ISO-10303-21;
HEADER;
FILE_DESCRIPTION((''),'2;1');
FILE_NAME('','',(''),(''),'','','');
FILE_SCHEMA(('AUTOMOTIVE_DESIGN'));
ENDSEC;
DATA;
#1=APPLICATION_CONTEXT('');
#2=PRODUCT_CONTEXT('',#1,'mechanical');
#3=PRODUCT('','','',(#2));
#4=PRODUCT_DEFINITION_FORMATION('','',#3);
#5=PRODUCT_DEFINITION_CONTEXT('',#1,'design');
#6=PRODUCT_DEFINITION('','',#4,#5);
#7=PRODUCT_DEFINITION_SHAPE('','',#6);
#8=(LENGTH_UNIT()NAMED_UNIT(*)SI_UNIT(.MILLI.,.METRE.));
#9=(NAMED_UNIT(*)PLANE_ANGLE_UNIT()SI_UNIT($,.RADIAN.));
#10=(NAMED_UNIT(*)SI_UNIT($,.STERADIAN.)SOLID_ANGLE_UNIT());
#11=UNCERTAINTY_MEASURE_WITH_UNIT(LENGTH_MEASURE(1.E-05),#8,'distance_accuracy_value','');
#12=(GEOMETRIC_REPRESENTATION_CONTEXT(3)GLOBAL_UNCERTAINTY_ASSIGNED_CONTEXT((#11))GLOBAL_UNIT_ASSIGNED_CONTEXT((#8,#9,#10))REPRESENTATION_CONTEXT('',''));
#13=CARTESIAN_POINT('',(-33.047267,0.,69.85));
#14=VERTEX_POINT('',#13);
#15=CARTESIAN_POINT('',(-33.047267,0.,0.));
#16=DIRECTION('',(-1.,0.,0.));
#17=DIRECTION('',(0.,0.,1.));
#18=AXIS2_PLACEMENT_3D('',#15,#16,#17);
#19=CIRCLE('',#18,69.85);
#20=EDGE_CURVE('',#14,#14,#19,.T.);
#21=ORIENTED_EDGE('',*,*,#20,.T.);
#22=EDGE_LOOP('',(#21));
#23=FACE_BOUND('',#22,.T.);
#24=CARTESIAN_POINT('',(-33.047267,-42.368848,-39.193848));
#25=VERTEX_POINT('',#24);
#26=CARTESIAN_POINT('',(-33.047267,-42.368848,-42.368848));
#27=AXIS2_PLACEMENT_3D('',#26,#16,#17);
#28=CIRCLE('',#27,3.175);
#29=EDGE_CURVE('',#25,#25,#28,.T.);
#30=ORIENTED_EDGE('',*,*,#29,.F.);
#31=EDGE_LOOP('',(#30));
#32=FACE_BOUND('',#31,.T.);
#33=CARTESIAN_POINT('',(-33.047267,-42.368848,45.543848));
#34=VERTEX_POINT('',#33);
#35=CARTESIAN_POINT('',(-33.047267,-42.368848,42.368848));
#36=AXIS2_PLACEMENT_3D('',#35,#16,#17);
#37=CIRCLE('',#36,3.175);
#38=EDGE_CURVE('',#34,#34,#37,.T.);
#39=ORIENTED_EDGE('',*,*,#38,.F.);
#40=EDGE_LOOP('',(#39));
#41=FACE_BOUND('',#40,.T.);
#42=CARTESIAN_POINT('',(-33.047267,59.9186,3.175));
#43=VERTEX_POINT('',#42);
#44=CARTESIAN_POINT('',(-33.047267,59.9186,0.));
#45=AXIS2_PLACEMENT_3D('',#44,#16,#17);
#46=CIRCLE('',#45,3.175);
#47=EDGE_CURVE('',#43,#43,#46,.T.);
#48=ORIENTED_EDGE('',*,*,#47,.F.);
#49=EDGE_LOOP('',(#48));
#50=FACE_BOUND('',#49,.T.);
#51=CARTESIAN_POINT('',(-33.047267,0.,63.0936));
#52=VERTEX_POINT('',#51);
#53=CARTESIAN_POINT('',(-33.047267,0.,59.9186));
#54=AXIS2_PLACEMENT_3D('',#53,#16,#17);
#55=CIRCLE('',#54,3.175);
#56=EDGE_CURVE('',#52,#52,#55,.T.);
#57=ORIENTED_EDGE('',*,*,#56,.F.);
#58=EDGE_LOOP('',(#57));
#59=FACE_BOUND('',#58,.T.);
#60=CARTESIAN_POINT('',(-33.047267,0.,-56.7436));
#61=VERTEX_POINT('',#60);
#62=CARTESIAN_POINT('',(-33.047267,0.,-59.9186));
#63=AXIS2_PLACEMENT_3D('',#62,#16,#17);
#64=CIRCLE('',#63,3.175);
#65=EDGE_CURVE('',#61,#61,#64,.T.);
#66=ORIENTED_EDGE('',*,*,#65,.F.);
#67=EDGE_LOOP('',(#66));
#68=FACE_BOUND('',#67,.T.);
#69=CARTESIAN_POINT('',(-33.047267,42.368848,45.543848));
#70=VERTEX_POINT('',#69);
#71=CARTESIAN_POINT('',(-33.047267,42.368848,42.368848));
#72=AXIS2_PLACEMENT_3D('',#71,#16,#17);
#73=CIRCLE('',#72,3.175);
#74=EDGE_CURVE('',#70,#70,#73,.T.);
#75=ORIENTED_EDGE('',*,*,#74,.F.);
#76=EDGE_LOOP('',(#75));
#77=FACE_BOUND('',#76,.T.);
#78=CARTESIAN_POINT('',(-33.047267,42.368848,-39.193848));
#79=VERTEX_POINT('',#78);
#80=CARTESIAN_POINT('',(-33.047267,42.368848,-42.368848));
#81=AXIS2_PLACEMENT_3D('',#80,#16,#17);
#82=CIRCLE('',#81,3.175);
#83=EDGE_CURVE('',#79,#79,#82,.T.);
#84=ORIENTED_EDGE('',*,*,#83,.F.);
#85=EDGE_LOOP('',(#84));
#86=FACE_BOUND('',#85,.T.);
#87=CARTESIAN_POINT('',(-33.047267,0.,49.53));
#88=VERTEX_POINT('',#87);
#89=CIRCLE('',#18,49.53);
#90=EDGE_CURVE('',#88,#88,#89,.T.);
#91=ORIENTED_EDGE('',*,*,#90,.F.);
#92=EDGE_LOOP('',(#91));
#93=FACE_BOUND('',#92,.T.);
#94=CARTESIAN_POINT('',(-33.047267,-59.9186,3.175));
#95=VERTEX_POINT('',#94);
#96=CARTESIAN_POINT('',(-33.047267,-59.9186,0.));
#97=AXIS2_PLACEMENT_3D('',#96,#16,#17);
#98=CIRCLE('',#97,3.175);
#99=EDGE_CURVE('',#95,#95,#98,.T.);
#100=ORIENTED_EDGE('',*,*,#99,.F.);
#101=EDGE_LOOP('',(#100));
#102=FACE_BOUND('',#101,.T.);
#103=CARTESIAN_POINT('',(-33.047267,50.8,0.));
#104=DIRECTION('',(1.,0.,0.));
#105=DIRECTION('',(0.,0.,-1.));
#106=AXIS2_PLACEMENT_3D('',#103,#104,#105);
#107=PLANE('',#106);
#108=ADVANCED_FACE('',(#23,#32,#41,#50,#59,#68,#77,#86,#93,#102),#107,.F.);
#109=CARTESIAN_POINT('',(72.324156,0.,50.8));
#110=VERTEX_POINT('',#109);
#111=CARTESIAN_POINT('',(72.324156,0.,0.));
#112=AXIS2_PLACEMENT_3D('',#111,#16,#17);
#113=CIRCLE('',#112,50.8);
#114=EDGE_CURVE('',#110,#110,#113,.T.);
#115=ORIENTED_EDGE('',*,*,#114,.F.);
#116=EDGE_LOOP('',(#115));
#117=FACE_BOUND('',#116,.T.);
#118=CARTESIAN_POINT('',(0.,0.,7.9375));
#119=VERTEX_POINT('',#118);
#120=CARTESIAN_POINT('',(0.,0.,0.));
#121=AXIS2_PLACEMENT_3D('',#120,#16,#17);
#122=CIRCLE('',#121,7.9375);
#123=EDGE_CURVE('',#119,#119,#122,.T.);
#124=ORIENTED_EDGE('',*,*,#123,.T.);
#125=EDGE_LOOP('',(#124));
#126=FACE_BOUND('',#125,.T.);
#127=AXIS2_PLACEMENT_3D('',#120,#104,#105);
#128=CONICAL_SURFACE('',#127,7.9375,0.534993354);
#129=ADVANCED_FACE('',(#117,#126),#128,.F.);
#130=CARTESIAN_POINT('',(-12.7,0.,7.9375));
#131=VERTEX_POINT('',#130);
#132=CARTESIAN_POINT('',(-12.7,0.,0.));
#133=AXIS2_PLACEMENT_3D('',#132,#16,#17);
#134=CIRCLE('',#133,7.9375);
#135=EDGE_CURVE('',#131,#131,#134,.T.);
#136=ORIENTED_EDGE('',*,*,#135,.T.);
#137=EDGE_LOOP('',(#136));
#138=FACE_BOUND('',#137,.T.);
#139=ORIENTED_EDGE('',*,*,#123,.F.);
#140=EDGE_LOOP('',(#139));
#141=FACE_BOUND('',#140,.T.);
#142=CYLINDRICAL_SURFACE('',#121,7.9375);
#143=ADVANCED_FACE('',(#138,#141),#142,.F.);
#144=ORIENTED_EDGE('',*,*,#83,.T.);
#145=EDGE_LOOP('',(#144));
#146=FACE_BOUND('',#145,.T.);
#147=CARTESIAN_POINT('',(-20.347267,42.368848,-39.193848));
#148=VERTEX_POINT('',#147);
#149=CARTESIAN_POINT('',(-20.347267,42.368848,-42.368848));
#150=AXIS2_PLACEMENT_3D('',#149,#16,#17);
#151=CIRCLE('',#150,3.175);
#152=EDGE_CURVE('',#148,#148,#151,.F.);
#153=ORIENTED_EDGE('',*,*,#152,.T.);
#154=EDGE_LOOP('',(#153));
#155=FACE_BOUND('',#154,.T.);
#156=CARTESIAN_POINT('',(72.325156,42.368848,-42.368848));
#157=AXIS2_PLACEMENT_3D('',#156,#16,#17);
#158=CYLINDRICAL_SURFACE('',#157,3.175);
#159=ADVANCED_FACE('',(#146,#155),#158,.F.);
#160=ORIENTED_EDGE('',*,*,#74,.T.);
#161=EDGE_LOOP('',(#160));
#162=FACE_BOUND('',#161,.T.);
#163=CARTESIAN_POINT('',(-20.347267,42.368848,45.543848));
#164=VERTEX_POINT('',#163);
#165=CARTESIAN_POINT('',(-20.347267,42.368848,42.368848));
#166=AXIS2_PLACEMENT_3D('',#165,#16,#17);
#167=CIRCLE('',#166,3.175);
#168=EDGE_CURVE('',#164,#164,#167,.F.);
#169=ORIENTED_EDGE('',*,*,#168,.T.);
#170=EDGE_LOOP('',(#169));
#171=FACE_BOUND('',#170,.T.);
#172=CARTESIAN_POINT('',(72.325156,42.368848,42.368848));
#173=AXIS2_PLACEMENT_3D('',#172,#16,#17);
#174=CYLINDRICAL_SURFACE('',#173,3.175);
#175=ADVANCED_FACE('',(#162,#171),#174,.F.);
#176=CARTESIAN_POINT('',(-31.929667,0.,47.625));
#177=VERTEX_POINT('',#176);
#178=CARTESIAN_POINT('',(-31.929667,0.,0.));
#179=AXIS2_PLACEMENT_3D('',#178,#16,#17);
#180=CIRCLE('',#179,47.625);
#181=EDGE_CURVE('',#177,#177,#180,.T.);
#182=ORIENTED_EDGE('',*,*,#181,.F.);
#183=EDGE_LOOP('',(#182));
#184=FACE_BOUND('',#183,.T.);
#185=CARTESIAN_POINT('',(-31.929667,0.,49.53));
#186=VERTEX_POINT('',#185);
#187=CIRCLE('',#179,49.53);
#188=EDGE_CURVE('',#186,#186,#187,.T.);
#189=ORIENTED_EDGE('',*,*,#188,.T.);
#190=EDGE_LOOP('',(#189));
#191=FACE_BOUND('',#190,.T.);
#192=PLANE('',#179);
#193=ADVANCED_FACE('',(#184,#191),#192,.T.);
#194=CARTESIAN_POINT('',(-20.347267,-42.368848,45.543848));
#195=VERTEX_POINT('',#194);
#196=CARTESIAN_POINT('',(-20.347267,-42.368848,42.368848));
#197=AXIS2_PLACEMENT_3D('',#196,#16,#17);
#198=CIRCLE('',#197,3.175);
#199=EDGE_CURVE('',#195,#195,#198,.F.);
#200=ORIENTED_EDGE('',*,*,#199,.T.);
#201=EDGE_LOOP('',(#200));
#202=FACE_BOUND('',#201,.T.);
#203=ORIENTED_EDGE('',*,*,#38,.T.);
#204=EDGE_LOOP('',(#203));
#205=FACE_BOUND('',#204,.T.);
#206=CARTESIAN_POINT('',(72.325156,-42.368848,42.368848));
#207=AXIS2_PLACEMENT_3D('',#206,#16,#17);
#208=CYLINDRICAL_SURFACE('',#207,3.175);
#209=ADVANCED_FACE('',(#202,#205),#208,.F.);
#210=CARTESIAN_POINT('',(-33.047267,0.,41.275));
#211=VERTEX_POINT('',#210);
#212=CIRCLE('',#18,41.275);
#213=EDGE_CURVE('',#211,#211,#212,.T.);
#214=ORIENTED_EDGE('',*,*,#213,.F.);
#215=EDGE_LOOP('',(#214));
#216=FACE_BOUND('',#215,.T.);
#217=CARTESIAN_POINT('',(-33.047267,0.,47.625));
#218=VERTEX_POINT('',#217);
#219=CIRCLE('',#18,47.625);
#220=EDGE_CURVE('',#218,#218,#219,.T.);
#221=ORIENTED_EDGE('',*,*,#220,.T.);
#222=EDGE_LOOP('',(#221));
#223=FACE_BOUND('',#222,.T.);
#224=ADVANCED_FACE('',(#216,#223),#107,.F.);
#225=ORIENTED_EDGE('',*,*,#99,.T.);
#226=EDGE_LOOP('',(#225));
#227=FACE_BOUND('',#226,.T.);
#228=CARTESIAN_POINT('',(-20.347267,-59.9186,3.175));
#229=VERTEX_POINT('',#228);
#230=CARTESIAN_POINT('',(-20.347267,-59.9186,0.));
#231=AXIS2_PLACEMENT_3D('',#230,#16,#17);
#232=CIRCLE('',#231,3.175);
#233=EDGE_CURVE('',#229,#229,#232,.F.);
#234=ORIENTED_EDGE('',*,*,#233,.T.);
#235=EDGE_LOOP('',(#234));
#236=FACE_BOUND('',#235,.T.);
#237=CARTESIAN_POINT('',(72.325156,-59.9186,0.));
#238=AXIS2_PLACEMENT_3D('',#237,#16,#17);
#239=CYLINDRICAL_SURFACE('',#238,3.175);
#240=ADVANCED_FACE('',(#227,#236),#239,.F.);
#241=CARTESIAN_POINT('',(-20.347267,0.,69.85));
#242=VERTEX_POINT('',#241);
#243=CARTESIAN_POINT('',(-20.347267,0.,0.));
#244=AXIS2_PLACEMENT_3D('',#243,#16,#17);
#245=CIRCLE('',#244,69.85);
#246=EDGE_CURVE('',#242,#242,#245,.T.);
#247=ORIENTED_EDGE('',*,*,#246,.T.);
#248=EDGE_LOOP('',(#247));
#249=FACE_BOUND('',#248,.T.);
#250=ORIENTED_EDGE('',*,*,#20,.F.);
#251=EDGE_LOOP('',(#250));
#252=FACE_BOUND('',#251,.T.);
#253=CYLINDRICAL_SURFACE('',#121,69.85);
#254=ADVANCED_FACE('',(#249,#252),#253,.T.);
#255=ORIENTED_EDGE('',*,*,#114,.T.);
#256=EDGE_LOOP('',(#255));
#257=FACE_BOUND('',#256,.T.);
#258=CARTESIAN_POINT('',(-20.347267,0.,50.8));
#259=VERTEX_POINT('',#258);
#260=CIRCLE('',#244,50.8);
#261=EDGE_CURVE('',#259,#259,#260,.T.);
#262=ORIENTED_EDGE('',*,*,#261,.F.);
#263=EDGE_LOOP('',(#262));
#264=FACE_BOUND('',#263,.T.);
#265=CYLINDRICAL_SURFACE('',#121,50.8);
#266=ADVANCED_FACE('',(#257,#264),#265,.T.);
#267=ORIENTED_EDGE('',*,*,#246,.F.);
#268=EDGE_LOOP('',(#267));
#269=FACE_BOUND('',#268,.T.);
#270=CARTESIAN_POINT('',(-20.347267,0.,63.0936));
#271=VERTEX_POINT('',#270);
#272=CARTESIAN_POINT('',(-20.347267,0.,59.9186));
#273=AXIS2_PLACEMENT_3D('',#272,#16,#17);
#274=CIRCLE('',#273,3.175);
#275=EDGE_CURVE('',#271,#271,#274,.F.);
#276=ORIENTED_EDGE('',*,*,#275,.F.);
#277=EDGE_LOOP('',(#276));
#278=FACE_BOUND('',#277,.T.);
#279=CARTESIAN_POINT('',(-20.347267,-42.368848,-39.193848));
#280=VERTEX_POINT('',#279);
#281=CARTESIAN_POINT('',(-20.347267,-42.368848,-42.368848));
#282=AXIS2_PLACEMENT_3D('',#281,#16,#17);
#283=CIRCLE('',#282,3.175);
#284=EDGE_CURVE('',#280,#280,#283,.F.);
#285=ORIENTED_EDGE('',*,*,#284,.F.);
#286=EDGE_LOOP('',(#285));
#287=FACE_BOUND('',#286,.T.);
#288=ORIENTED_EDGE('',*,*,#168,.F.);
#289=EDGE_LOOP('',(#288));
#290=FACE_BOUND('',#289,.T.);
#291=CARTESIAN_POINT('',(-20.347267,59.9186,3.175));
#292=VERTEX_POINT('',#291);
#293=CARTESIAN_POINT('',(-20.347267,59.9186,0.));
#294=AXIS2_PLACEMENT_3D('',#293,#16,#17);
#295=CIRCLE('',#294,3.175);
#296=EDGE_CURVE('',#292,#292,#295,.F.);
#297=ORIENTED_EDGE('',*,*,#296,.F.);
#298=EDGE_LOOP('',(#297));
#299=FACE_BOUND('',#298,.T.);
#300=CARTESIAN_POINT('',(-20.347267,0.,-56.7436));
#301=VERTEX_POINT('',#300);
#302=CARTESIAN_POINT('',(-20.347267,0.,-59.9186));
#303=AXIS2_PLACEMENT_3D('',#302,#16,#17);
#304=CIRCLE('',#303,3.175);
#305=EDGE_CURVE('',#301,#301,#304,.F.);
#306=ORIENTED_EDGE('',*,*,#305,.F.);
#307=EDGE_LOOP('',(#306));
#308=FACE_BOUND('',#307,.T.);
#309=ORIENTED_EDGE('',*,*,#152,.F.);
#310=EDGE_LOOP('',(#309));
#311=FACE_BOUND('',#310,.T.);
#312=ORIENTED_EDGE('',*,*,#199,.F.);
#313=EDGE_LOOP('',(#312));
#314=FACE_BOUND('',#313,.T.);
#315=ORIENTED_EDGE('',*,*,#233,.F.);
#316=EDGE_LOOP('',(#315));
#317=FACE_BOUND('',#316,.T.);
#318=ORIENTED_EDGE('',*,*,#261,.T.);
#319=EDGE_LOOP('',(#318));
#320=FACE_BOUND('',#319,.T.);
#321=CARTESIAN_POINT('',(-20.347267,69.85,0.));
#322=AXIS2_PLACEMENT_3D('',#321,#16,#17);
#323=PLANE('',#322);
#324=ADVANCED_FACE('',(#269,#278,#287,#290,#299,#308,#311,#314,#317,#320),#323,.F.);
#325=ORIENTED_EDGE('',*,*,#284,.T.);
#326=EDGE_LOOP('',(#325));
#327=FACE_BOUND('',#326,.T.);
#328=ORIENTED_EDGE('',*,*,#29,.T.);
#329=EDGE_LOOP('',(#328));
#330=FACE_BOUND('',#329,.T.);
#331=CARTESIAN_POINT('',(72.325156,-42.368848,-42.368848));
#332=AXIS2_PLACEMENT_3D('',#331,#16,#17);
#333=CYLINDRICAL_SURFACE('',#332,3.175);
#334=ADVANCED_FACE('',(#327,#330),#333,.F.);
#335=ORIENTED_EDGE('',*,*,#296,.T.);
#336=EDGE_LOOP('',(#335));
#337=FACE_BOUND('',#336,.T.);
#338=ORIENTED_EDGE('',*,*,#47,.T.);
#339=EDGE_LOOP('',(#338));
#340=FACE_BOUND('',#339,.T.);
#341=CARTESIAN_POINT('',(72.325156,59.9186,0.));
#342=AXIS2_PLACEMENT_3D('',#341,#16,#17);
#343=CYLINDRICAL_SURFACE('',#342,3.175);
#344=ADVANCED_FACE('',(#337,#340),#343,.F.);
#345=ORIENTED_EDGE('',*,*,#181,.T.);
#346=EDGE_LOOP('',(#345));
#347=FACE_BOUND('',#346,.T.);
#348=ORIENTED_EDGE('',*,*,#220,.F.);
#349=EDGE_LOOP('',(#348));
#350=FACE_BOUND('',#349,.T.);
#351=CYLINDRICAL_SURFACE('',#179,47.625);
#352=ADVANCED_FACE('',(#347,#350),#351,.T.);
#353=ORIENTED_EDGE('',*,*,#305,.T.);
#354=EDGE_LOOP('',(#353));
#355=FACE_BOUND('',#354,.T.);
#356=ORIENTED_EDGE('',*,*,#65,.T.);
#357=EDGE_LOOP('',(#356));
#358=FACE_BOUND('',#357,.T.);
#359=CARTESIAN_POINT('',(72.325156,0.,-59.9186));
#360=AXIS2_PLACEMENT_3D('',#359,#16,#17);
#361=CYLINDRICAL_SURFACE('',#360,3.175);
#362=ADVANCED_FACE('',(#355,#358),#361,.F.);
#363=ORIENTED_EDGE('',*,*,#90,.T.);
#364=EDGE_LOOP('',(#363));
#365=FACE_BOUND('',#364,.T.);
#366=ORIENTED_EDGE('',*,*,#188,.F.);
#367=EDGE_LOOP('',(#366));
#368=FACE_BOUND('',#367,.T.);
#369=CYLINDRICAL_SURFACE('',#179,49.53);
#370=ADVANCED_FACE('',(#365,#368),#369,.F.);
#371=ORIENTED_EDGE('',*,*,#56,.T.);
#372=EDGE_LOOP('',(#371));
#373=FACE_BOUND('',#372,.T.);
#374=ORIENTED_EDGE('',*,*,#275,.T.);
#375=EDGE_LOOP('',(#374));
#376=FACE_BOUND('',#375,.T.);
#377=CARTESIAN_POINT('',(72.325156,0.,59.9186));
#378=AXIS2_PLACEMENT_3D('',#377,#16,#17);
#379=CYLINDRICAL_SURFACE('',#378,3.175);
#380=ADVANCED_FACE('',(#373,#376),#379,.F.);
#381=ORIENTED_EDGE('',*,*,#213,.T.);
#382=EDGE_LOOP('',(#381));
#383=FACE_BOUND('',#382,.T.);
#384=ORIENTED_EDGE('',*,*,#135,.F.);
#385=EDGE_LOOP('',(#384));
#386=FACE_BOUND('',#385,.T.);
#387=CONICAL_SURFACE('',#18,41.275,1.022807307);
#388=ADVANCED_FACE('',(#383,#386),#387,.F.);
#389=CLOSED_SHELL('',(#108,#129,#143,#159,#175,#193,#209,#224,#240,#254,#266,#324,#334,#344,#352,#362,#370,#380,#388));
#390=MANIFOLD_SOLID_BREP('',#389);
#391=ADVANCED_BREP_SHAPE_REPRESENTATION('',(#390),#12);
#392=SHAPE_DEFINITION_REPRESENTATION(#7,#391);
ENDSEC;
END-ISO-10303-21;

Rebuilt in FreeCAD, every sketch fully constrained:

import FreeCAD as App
import Part
import Sketcher
Q = App.Units.Quantity


def add_polygon(sketch, points):
    """Adds a closed chain of lines whose ends are joined by coincident constraints."""
    first, n = sketch.GeometryCount, len(points)
    for a, b in zip(points, points[1:] + points[:1]):
        sketch.addGeometry(Part.LineSegment(App.Vector(*a, 0), App.Vector(*b, 0)), False)
    for i in range(n):
        sketch.addConstraint(Sketcher.Constraint("Coincident", first + i, 2, first + (i + 1) % n, 1))

doc = App.newDocument("Part")
body = doc.addObject("PartDesign::Body", "Body")

# Sketch on XY plane
sketch1 = body.newObject("Sketcher::SketchObject", "Sketch")
sketch1.AttachmentSupport = (doc.getObject("XY_Plane"), [""])
sketch1.MapMode = "FlatFace"
add_polygon(sketch1, [(0, 8), (72, 51), (-20, 51), (-20, 70), (-33, 70), (-33, 41), (-13, 8)])  # lines 0-6
sketch1.addConstraint([
    Sketcher.Constraint("Horizontal", 1),
    Sketcher.Constraint("Vertical", 2),
    Sketcher.Constraint("Horizontal", 3),
    Sketcher.Constraint("Vertical", 4),
    Sketcher.Constraint("Horizontal", 6),
    Sketcher.Constraint("PointOnObject", 6, 2, -2),
    Sketcher.Constraint("Equal", 3, 6),
    Sketcher.Constraint("DistanceX", 3, 2, 3, 1, Q("0.5 in")),
    Sketcher.Constraint("DistanceY", -1, 1, 0, 2, Q("2 in")),
    Sketcher.Constraint("DistanceY", 2, 1, 2, 2, Q("0.75 in")),
    Sketcher.Constraint("DistanceY", 4, 2, 4, 1, Q("1.125 in")),
    Sketcher.Constraint("DistanceY", -1, 1, 5, 2, Q("0.3125 in")),
    Sketcher.Constraint("Distance", 5, Q("39.056372 mm")),
    Sketcher.Constraint("DistanceX", 1, 2, 1, 1, Q("92.671423 mm")),
])
revolution = body.newObject("PartDesign::Revolution", "Revolution")
revolution.Profile = sketch1
revolution.ReferenceAxis = (sketch1, ["H_Axis"])
revolution.Angle = 360

# Sketch on YZ plane
sketch2 = body.newObject("Sketcher::SketchObject", "Sketch001")
sketch2.AttachmentSupport = (doc.getObject("YZ_Plane"), [""])
sketch2.MapMode = "FlatFace"
sketch2.AttachmentOffset = App.Placement(App.Vector(0, 0, -33.047267), App.Rotation())
sketch2.addGeometry([
    Part.Circle(App.Vector(0, 0, 0), App.Vector(0, 0, 1), 50),
    Part.Circle(App.Vector(0, 0, 0), App.Vector(0, 0, 1), 48),
], False)
sketch2.addConstraint([
    Sketcher.Constraint("Coincident", 0, 3, -1, 1),
    Sketcher.Constraint("Coincident", 1, 3, -1, 1),
    Sketcher.Constraint("Diameter", 0, Q("3.9 in")),
    Sketcher.Constraint("Diameter", 1, Q("3.75 in")),
])
pocket1 = body.newObject("PartDesign::Pocket", "Pocket")
pocket1.Profile = sketch2
pocket1.Length = Q("0.044 in")
pocket1.Reversed = True

# Sketch on YZ plane
sketch3 = body.newObject("Sketcher::SketchObject", "Sketch002")
sketch3.AttachmentSupport = (doc.getObject("YZ_Plane"), [""])
sketch3.MapMode = "FlatFace"
sketch3.AttachmentOffset = App.Placement(App.Vector(0, 0, -33.047267), App.Rotation())
sketch3.addGeometry(Part.Circle(App.Vector(59.9, 0, 0), App.Vector(0, 0, 1), 3.2), False)
sketch3.addConstraint([
    Sketcher.Constraint("PointOnObject", 0, 3, -1),
    Sketcher.Constraint("Diameter", 0, Q("0.25 in")),
    Sketcher.Constraint("DistanceX", -1, 1, 0, 3, Q("2.359 in")),
])
pocket2 = body.newObject("PartDesign::Pocket", "Pocket001")
pocket2.Profile = sketch3
pocket2.Type = "UpToFirst"
pocket2.Reversed = True

# Sketch on YZ plane
sketch4 = body.newObject("Sketcher::SketchObject", "Sketch003")
sketch4.AttachmentSupport = (doc.getObject("YZ_Plane"), [""])
sketch4.MapMode = "FlatFace"
sketch4.AttachmentOffset = App.Placement(App.Vector(0, 0, -33.047267), App.Rotation())
sketch4.addGeometry(Part.Circle(App.Vector(42.4, 42.4, 0), App.Vector(0, 0, 1), 3.2), False)
sketch4.addConstraint([
    Sketcher.Constraint("Diameter", 0, Q("0.25 in")),
    Sketcher.Constraint("DistanceX", -1, 1, 0, 3, Q("42.368848 mm")),
    Sketcher.Constraint("DistanceY", -1, 1, 0, 3, Q("42.368848 mm")),
])
pocket3 = body.newObject("PartDesign::Pocket", "Pocket002")
pocket3.Profile = sketch4
pocket3.Type = "UpToFirst"
pocket3.Reversed = True

# Sketch on YZ plane
sketch5 = body.newObject("Sketcher::SketchObject", "Sketch004")
sketch5.AttachmentSupport = (doc.getObject("YZ_Plane"), [""])
sketch5.MapMode = "FlatFace"
sketch5.AttachmentOffset = App.Placement(App.Vector(0, 0, -33.047267), App.Rotation())
sketch5.addGeometry(Part.Circle(App.Vector(0, 59.9, 0), App.Vector(0, 0, 1), 3.2), False)
sketch5.addConstraint([
    Sketcher.Constraint("PointOnObject", 0, 3, -2),
    Sketcher.Constraint("Diameter", 0, Q("0.25 in")),
    Sketcher.Constraint("DistanceY", -1, 1, 0, 3, Q("2.359 in")),
])
pocket4 = body.newObject("PartDesign::Pocket", "Pocket003")
pocket4.Profile = sketch5
pocket4.Type = "UpToFirst"
pocket4.Reversed = True

# Sketch on YZ plane
sketch6 = body.newObject("Sketcher::SketchObject", "Sketch005")
sketch6.AttachmentSupport = (doc.getObject("YZ_Plane"), [""])
sketch6.MapMode = "FlatFace"
sketch6.AttachmentOffset = App.Placement(App.Vector(0, 0, -33.047267), App.Rotation())
sketch6.addGeometry(Part.Circle(App.Vector(-42.4, 42.4, 0), App.Vector(0, 0, 1), 3.2), False)
sketch6.addConstraint([
    Sketcher.Constraint("Diameter", 0, Q("0.25 in")),
    Sketcher.Constraint("DistanceX", 0, 3, -1, 1, Q("42.368848 mm")),
    Sketcher.Constraint("DistanceY", -1, 1, 0, 3, Q("42.368848 mm")),
])
pocket5 = body.newObject("PartDesign::Pocket", "Pocket004")
pocket5.Profile = sketch6
pocket5.Type = "UpToFirst"
pocket5.Reversed = True

# Sketch on YZ plane
sketch7 = body.newObject("Sketcher::SketchObject", "Sketch006")
sketch7.AttachmentSupport = (doc.getObject("YZ_Plane"), [""])
sketch7.MapMode = "FlatFace"
sketch7.AttachmentOffset = App.Placement(App.Vector(0, 0, -33.047267), App.Rotation())
sketch7.addGeometry(Part.Circle(App.Vector(-59.9, 0, 0), App.Vector(0, 0, 1), 3.2), False)
sketch7.addConstraint([
    Sketcher.Constraint("PointOnObject", 0, 3, -1),
    Sketcher.Constraint("Diameter", 0, Q("0.25 in")),
    Sketcher.Constraint("DistanceX", 0, 3, -1, 1, Q("2.359 in")),
])
pocket6 = body.newObject("PartDesign::Pocket", "Pocket005")
pocket6.Profile = sketch7
pocket6.Type = "UpToFirst"
pocket6.Reversed = True

# Sketch on YZ plane
sketch8 = body.newObject("Sketcher::SketchObject", "Sketch007")
sketch8.AttachmentSupport = (doc.getObject("YZ_Plane"), [""])
sketch8.MapMode = "FlatFace"
sketch8.AttachmentOffset = App.Placement(App.Vector(0, 0, -33.047267), App.Rotation())
sketch8.addGeometry(Part.Circle(App.Vector(-42.4, -42.4, 0), App.Vector(0, 0, 1), 3.2), False)
sketch8.addConstraint([
    Sketcher.Constraint("Diameter", 0, Q("0.25 in")),
    Sketcher.Constraint("DistanceX", 0, 3, -1, 1, Q("42.368848 mm")),
    Sketcher.Constraint("DistanceY", 0, 3, -1, 1, Q("42.368848 mm")),
])
pocket7 = body.newObject("PartDesign::Pocket", "Pocket006")
pocket7.Profile = sketch8
pocket7.Type = "UpToFirst"
pocket7.Reversed = True

# Sketch on YZ plane
sketch9 = body.newObject("Sketcher::SketchObject", "Sketch008")
sketch9.AttachmentSupport = (doc.getObject("YZ_Plane"), [""])
sketch9.MapMode = "FlatFace"
sketch9.AttachmentOffset = App.Placement(App.Vector(0, 0, -33.047267), App.Rotation())
sketch9.addGeometry(Part.Circle(App.Vector(0, -59.9, 0), App.Vector(0, 0, 1), 3.2), False)
sketch9.addConstraint([
    Sketcher.Constraint("PointOnObject", 0, 3, -2),
    Sketcher.Constraint("Diameter", 0, Q("0.25 in")),
    Sketcher.Constraint("DistanceY", 0, 3, -1, 1, Q("2.359 in")),
])
pocket8 = body.newObject("PartDesign::Pocket", "Pocket007")
pocket8.Profile = sketch9
pocket8.Type = "UpToFirst"
pocket8.Reversed = True

# Sketch on YZ plane
sketch10 = body.newObject("Sketcher::SketchObject", "Sketch009")
sketch10.AttachmentSupport = (doc.getObject("YZ_Plane"), [""])
sketch10.MapMode = "FlatFace"
sketch10.AttachmentOffset = App.Placement(App.Vector(0, 0, -33.047267), App.Rotation())
sketch10.addGeometry(Part.Circle(App.Vector(42.4, -42.4, 0), App.Vector(0, 0, 1), 3.2), False)
sketch10.addConstraint([
    Sketcher.Constraint("Diameter", 0, Q("0.25 in")),
    Sketcher.Constraint("DistanceX", -1, 1, 0, 3, Q("42.368848 mm")),
    Sketcher.Constraint("DistanceY", 0, 3, -1, 1, Q("42.368848 mm")),
])
pocket9 = body.newObject("PartDesign::Pocket", "Pocket008")
pocket9.Profile = sketch10
pocket9.Type = "UpToFirst"
pocket9.Reversed = True

doc.recompute()
